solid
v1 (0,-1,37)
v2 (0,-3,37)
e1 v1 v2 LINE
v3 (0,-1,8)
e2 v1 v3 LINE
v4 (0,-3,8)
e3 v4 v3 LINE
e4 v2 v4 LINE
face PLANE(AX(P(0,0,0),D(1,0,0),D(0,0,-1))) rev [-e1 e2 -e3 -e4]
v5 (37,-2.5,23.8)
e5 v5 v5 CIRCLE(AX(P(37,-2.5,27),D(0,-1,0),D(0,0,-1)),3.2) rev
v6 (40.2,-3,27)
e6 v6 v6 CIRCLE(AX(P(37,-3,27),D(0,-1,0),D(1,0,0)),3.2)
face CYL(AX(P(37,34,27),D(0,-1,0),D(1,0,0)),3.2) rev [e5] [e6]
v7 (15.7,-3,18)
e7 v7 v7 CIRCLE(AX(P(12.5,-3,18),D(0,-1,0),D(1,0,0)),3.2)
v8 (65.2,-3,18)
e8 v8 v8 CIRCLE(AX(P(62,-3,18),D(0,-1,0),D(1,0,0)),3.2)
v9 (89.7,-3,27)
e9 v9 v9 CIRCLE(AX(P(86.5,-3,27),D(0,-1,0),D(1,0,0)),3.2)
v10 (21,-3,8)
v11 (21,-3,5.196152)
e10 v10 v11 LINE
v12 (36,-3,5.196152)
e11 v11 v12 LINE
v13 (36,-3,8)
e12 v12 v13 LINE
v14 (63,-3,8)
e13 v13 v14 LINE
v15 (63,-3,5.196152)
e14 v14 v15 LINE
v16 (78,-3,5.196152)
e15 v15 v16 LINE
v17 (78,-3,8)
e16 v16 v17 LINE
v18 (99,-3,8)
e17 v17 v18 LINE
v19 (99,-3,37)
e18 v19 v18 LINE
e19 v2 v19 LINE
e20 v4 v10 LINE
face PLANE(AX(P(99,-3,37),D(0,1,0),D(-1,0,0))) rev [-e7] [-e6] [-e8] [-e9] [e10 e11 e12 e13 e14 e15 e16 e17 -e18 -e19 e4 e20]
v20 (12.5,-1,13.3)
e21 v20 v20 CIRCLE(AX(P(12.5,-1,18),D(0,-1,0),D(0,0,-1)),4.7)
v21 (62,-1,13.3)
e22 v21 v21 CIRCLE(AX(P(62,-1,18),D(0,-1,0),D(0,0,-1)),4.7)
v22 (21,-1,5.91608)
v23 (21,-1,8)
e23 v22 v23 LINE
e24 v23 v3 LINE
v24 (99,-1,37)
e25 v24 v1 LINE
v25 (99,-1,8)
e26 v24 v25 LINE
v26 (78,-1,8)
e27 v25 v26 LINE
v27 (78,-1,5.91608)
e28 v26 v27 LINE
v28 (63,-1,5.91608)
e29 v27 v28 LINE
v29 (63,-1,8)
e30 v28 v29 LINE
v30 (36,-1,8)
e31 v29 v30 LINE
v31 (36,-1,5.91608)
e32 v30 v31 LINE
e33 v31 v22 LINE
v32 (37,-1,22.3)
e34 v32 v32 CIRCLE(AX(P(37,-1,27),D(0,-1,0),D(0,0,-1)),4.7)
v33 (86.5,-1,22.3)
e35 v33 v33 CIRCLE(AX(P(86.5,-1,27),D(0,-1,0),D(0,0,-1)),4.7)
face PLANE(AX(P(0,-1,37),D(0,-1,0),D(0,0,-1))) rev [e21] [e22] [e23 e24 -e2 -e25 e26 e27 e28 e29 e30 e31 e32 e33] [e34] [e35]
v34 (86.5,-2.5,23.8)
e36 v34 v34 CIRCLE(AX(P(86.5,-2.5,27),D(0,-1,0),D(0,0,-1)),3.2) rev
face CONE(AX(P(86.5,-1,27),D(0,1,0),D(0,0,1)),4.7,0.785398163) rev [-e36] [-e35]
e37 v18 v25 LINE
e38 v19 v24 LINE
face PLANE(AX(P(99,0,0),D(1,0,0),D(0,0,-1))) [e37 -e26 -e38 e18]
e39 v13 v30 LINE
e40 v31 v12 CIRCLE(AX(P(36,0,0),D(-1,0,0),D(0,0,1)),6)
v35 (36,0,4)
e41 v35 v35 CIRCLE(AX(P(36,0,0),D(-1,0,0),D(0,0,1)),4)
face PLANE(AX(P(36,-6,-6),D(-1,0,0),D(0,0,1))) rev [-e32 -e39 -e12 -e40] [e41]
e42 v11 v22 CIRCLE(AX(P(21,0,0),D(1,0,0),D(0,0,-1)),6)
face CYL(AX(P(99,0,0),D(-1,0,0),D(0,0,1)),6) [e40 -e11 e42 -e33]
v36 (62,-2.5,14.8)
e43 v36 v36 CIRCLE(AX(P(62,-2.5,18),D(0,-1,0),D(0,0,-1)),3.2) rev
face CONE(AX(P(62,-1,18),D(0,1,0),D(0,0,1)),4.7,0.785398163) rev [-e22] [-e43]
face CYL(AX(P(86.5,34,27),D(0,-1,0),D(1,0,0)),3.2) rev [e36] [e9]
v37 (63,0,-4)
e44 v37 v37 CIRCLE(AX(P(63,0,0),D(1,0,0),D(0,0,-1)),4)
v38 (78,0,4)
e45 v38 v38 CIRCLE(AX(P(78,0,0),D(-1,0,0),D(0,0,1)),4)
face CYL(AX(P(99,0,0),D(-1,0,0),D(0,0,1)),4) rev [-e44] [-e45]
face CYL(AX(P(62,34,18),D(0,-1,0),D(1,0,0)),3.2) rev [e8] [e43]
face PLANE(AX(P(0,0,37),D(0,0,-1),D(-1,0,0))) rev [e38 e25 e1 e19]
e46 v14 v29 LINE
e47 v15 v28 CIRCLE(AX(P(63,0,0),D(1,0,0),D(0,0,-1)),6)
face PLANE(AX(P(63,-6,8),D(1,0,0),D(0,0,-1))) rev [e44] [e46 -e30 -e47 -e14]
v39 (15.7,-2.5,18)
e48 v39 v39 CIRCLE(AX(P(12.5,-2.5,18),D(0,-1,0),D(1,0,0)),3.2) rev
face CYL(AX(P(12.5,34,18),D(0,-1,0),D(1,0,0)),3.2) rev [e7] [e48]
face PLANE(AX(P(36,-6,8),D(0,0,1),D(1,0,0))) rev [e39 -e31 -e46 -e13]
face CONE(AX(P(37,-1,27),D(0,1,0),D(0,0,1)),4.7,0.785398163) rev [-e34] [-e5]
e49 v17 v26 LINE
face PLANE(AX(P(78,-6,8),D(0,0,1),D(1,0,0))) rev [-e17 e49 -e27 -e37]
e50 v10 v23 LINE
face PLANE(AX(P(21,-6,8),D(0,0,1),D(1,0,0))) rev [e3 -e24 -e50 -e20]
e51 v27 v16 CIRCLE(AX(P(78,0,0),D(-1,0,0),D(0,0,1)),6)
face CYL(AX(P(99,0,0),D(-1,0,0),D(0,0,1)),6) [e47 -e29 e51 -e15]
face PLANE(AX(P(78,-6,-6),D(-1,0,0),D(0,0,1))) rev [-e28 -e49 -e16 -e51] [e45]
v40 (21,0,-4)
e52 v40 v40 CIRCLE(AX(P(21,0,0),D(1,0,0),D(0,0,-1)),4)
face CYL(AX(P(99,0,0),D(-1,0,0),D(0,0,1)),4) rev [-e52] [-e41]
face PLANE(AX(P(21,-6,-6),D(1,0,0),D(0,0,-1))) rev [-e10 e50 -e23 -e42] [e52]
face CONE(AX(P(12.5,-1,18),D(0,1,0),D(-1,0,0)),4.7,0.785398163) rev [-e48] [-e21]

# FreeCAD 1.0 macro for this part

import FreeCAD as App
import Part
import Sketcher
Q = App.Units.Quantity


def edges_at(feature, points):
    """Names of the edges that pass closest to the given points."""
    edges = feature.Shape.Edges
    near = lambda p: min(range(len(edges)), key=lambda i: edges[i].distToShape(Part.Vertex(*p))[0])
    return sorted({f"Edge{near(p) + 1}" for p in points})


def add_polygon(sketch, points):
    """Adds a closed chain of lines whose ends are joined by coincident constraints."""
    first, n = sketch.GeometryCount, len(points)
    for a, b in zip(points, points[1:] + points[:1]):
        sketch.addGeometry(Part.LineSegment(App.Vector(*a, 0), App.Vector(*b, 0)), False)
    for i in range(n):
        sketch.addConstraint(Sketcher.Constraint("Coincident", first + i, 2, first + (i + 1) % n, 1))

doc = App.newDocument("Part")
params = doc.addObject("Spreadsheet::Sheet", "Params")
for row, (alias, value) in enumerate([
    ("sketch1_diameter", "12 mm"),
    ("sketch1_diameter2", "8 mm"),
    ("pad1_length", "99 mm"),
    ("sketch2_width", "99 mm"),
    ("sketch2_height", "2 mm"),
    ("pad2_length", "37 mm"),
    ("sketch3_diameter", "8 mm"),
    ("sketch4_diameter", "6.4 mm"),
    ("pocket2_length", "37 mm"),
    ("sketch5_width", "21 mm"),
    ("sketch5_width2", "27 mm"),
    ("sketch5_height", "14 mm"),
    ("chamfer_size", "1.5 mm"),
], start=1):
    params.set(f"A{row}", alias)
    params.set(f"B{row}", "=" + value)
    params.setAlias(f"B{row}", alias)

body = doc.addObject("PartDesign::Body", "Body")

# Sketch on YZ plane
sketch1 = body.newObject("Sketcher::SketchObject", "Sketch")
sketch1.AttachmentSupport = (doc.getObject("YZ_Plane"), [""])
sketch1.MapMode = "FlatFace"
sketch1.addGeometry([
    Part.Circle(App.Vector(0, 0, 0), App.Vector(0, 0, 1), 6),
    Part.Circle(App.Vector(0, 0, 0), App.Vector(0, 0, 1), 4),
], False)
sketch1.addConstraint([
    Sketcher.Constraint("Coincident", 0, 3, -1, 1),
    Sketcher.Constraint("Coincident", 1, 3, -1, 1),
    Sketcher.Constraint("Diameter", 0, Q("12 mm")),
    Sketcher.Constraint("Diameter", 1, Q("8 mm")),
])
sketch1.setExpression("Constraints[2]", "Params.sketch1_diameter")
sketch1.setExpression("Constraints[3]", "Params.sketch1_diameter2")
pad1 = body.newObject("PartDesign::Pad", "Pad")
pad1.Profile = sketch1
pad1.setExpression("Length", "Params.pad1_length")

# Sketch on XY plane
sketch2 = body.newObject("Sketcher::SketchObject", "Sketch001")
sketch2.AttachmentSupport = (doc.getObject("XY_Plane"), [""])
sketch2.MapMode = "FlatFace"
add_polygon(sketch2, [(0, -1), (0, -3), (99, -3), (99, -1)])  # lines 0-3
sketch2.addConstraint([
    Sketcher.Constraint("Vertical", 0),
    Sketcher.Constraint("Horizontal", 1),
    Sketcher.Constraint("Vertical", 2),
    Sketcher.Constraint("Horizontal", 3),
    Sketcher.Constraint("PointOnObject", 0, 2, -2),
    Sketcher.Constraint("DistanceX", 1, 1, 1, 2, Q("99 mm")),
    Sketcher.Constraint("DistanceY", 0, 2, 0, 1, Q("2 mm")),
    Sketcher.Constraint("DistanceY", 0, 2, -1, 1, Q("3 mm")),
])
sketch2.setExpression("Constraints[9]", "Params.sketch2_width")
sketch2.setExpression("Constraints[10]", "Params.sketch2_height")
pad2 = body.newObject("PartDesign::Pad", "Pad001")
pad2.Profile = sketch2
pad2.setExpression("Length", "Params.pad2_length")

# Sketch on YZ plane
sketch3 = body.newObject("Sketcher::SketchObject", "Sketch002")
sketch3.AttachmentSupport = (doc.getObject("YZ_Plane"), [""])
sketch3.MapMode = "FlatFace"
sketch3.addGeometry(Part.Circle(App.Vector(0, 0, 0), App.Vector(0, 0, 1), 4), False)
sketch3.addConstraint([
    Sketcher.Constraint("Coincident", 0, 3, -1, 1),
    Sketcher.Constraint("Diameter", 0, Q("8 mm")),
])
sketch3.setExpression("Constraints[1]", "Params.sketch3_diameter")
pocket1 = body.newObject("PartDesign::Pocket", "Pocket")
pocket1.Profile = sketch3
pocket1.Type = "ThroughAll"
pocket1.Reversed = True

# Sketch on XZ plane
sketch4 = body.newObject("Sketcher::SketchObject", "Sketch003")
sketch4.AttachmentSupport = (doc.getObject("XZ_Plane"), [""])
sketch4.MapMode = "FlatFace"
sketch4.AttachmentOffset = App.Placement(App.Vector(0, 0, 3), App.Rotation())
sketch4.addGeometry([
    Part.Circle(App.Vector(12.5, 18, 0), App.Vector(0, 0, 1), 3.2),
    Part.Circle(App.Vector(37, 27, 0), App.Vector(0, 0, 1), 3.2),
    Part.Circle(App.Vector(62, 18, 0), App.Vector(0, 0, 1), 3.2),
    Part.Circle(App.Vector(86.5, 27, 0), App.Vector(0, 0, 1), 3.2),
], False)
sketch4.addConstraint([
    Sketcher.Constraint("Equal", 0, 1),
    Sketcher.Constraint("Equal", 1, 2),
    Sketcher.Constraint("Equal", 2, 3),
    Sketcher.Constraint("Horizontal", 0, 3, 2, 3),
    Sketcher.Constraint("Horizontal", 1, 3, 3, 3),
    Sketcher.Constraint("Diameter", 0, Q("6.4 mm")),
    Sketcher.Constraint("DistanceY", -1, 1, 0, 3, Q("18 mm")),
    Sketcher.Constraint("DistanceX", -1, 1, 1, 3, Q("37 mm")),
    Sketcher.Constraint("DistanceY", -1, 1, 1, 3, Q("27 mm")),
    Sketcher.Constraint("DistanceX", -1, 1, 2, 3, Q("62 mm")),
    Sketcher.Constraint("DistanceX", 0, 3, 3, 3, Q("74 mm")),
    Sketcher.Constraint("DistanceX", -1, 1, 0, 3, Q("12.5 mm")),
])
sketch4.setExpression("Constraints[5]", "Params.sketch4_diameter")
pocket2 = body.newObject("PartDesign::Pocket", "Pocket001")
pocket2.Profile = sketch4
pocket2.setExpression("Length", "Params.pocket2_length")

# Sketch on XZ plane
sketch5 = body.newObject("Sketcher::SketchObject", "Sketch004")
sketch5.AttachmentSupport = (doc.getObject("XZ_Plane"), [""])
sketch5.MapMode = "FlatFace"
sketch5.AttachmentOffset = App.Placement(App.Vector(0, 0, 1), App.Rotation())
add_polygon(sketch5, [(0, -6), (0, 8), (21, 8), (21, -6)])  # lines 0-3
add_polygon(sketch5, [(36, -6), (36, 8), (63, 8), (63, -6)])  # lines 4-7
add_polygon(sketch5, [(78, -6), (78, 8), (99, 8), (99, -6)])  # lines 8-11
sketch5.addConstraint([
    Sketcher.Constraint("Vertical", 0),
    Sketcher.Constraint("Horizontal", 1),
    Sketcher.Constraint("Vertical", 2),
    Sketcher.Constraint("Horizontal", 3),
    Sketcher.Constraint("Vertical", 4),
    Sketcher.Constraint("Horizontal", 5),
    Sketcher.Constraint("Vertical", 6),
    Sketcher.Constraint("Horizontal", 7),
    Sketcher.Constraint("Vertical", 8),
    Sketcher.Constraint("Horizontal", 9),
    Sketcher.Constraint("Vertical", 10),
    Sketcher.Constraint("Horizontal", 11),
    Sketcher.Constraint("PointOnObject", 0, 2, -2),
    Sketcher.Constraint("Horizontal", 1, 2, 4, 2),
    Sketcher.Constraint("Horizontal", 3, 2, 6, 2),
    Sketcher.Constraint("Horizontal", 5, 2, 8, 2),
    Sketcher.Constraint("Horizontal", 7, 2, 10, 2),
    Sketcher.Constraint("Equal", 3, 9),
    Sketcher.Constraint("DistanceX", 1, 1, 1, 2, Q("21 mm")),
    Sketcher.Constraint("DistanceX", 5, 1, 5, 2, Q("27 mm")),
    Sketcher.Constraint("DistanceY", 0, 1, 0, 2, Q("14 mm")),
    Sketcher.Constraint("DistanceY", -1, 1, 0, 2, Q("8 mm")),
    Sketcher.Constraint("DistanceX", -1, 1, 4, 2, Q("36 mm")),
    Sketcher.Constraint("DistanceX", -1, 1, 8, 2, Q("78 mm")),
])
sketch5.setExpression("Constraints[30]", "Params.sketch5_width")
sketch5.setExpression("Constraints[31]", "Params.sketch5_width2")
sketch5.setExpression("Constraints[32]", "Params.sketch5_height")
pocket3 = body.newObject("PartDesign::Pocket", "Pocket002")
pocket3.Profile = sketch5
pocket3.Type = "ThroughAll"
pocket3.Midplane = True
doc.recompute()

chamfer = body.newObject("PartDesign::Chamfer", "Chamfer")
chamfer.Base = (pocket3, edges_at(pocket3, [
    (9.3, -1, 18),
    (33.8, -1, 27),
    (58.8, -1, 18),
    (83.3, -1, 27),
]))
chamfer.setExpression("Size", "Params.chamfer_size")

doc.recompute()
